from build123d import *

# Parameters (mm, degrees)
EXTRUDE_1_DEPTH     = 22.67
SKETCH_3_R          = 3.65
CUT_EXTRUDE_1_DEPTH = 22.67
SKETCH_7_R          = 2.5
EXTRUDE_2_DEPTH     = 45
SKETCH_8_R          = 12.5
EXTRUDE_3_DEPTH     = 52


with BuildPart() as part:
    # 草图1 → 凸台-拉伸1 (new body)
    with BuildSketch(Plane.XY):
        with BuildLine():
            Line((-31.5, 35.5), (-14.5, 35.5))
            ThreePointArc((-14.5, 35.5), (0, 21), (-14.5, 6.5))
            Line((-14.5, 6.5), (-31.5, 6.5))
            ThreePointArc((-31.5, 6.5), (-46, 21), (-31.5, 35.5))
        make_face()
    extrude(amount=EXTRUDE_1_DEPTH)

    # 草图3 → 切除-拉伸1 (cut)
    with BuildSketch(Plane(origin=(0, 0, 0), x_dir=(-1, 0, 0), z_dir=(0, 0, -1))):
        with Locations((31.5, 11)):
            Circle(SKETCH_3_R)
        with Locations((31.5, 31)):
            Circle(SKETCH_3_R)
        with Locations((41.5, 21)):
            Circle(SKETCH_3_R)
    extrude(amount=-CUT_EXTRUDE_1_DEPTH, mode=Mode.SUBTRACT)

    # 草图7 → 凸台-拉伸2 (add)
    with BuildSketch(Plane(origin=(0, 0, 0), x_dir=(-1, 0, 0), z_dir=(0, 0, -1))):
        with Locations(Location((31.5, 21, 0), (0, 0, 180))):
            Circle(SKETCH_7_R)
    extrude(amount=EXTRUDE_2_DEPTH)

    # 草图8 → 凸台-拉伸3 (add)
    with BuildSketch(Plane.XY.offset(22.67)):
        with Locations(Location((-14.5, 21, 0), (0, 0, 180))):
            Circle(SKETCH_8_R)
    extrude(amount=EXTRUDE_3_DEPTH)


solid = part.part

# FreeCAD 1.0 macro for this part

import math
import FreeCAD as App
import Part
import Sketcher

V = App.Vector

doc = App.newDocument("Part")
params = doc.addObject("Spreadsheet::Sheet", "Params")
for row, (alias, value) in enumerate([
    ("sketch1_radius", "14.5 mm"),
    ("sketch1_width", "17 mm"),
    ("pad1_length", "22.67 mm"),
    ("sketch2_diameter", "7.3 mm"),
    ("pocket1_length", "22.67 mm"),
    ("sketch3_diameter", "5 mm"),
    ("pad2_length", "45 mm"),
    ("sketch4_diameter", "25 mm"),
    ("pad3_length", "52 mm"),
], start=1):
    params.set(f"A{row}", alias)
    params.set(f"B{row}", "=" + value)
    params.setAlias(f"B{row}", alias)

body = doc.addObject("PartDesign::Body", "Body")

# Sketch on XY plane
sketch1 = body.newObject("Sketcher::SketchObject", "Sketch")
sketch1.AttachmentSupport = (doc.getObject("XY_Plane"), [""])
sketch1.MapMode = "FlatFace"
sketch1.addGeometry(Part.LineSegment(V(-14.5, 35.5, 0), V(-31.5, 35.5, 0)), False)
sketch1.addGeometry(Part.ArcOfCircle(Part.Circle(V(-31.5, 21, 0), V(0, 0, 1), 14.5), math.radians(90), math.radians(270)), False)
sketch1.addGeometry(Part.LineSegment(V(-31.5, 6.5, 0), V(-14.5, 6.5, 0)), False)
sketch1.addGeometry(Part.ArcOfCircle(Part.Circle(V(-14.5, 21, 0), V(0, 0, 1), 14.5), math.radians(-90), math.radians(90)), False)
sketch1.addConstraint(Sketcher.Constraint("Tangent", 0, 2, 1, 1))
sketch1.addConstraint(Sketcher.Constraint("Tangent", 1, 2, 2, 1))
sketch1.addConstraint(Sketcher.Constraint("Tangent", 2, 2, 3, 1))
sketch1.addConstraint(Sketcher.Constraint("Tangent", 3, 2, 0, 1))
sketch1.addConstraint(Sketcher.Constraint("Horizontal", 0))
sketch1.addConstraint(Sketcher.Constraint("Horizontal", 2))
sketch1.addConstraint(Sketcher.Constraint("Radius", 1, 14.5))
sketch1.addConstraint(Sketcher.Constraint("DistanceX", 0, 2, 0, 1, 17.0))
sketch1.addConstraint(Sketcher.Constraint("DistanceY", -1, 1, 1, 3, 21.0))
sketch1.addConstraint(Sketcher.Constraint("DistanceX", 1, 3, -1, 1, 31.5))
sketch1.setExpression("Constraints[6]", "Params.sketch1_radius")
sketch1.setExpression("Constraints[7]", "Params.sketch1_width")
pad1 = body.newObject("PartDesign::Pad", "Pad")
pad1.Profile = sketch1
pad1.setExpression("Length", "Params.pad1_length")

# Sketch on XY plane
sketch2 = body.newObject("Sketcher::SketchObject", "Sketch001")
sketch2.AttachmentSupport = (doc.getObject("XY_Plane"), [""])
sketch2.MapMode = "FlatFace"
sketch2.addGeometry(Part.Circle(V(-31.5, 11, 0), V(0, 0, 1), 3.65), False)
sketch2.addGeometry(Part.Circle(V(-31.5, 31, 0), V(0, 0, 1), 3.65), False)
sketch2.addGeometry(Part.Circle(V(-41.5, 21, 0), V(0, 0, 1), 3.65), False)
sketch2.addConstraint(Sketcher.Constraint("Equal", 0, 1))
sketch2.addConstraint(Sketcher.Constraint("Equal", 1, 2))
sketch2.addConstraint(Sketcher.Constraint("Vertical", 0, 3, 1, 3))
sketch2.addConstraint(Sketcher.Constraint("Diameter", 0, 7.3))
sketch2.addConstraint(Sketcher.Constraint("DistanceY", -1, 1, 0, 3, 11.0))
sketch2.addConstraint(Sketcher.Constraint("DistanceY", -1, 1, 1, 3, 31.0))
sketch2.addConstraint(Sketcher.Constraint("DistanceY", -1, 1, 2, 3, 21.0))
sketch2.addConstraint(Sketcher.Constraint("DistanceX", 2, 3, 0, 3, 10.0))
sketch2.addConstraint(Sketcher.Constraint("DistanceX", 0, 3, -1, 1, 31.5))
sketch2.setExpression("Constraints[3]", "Params.sketch2_diameter")
pocket1 = body.newObject("PartDesign::Pocket", "Pocket")
pocket1.Profile = sketch2
pocket1.setExpression("Length", "Params.pocket1_length")
pocket1.Reversed = True

# Sketch on XY plane
sketch3 = body.newObject("Sketcher::SketchObject", "Sketch002")
sketch3.AttachmentSupport = (doc.getObject("XY_Plane"), [""])
sketch3.MapMode = "FlatFace"
sketch3.addGeometry(Part.Circle(V(-31.5, 21, 0), V(0, 0, 1), 2.5), False)
sketch3.addConstraint(Sketcher.Constraint("Diameter", 0, 5.0))
sketch3.addConstraint(Sketcher.Constraint("DistanceY", -1, 1, 0, 3, 21.0))
sketch3.addConstraint(Sketcher.Constraint("DistanceX", 0, 3, -1, 1, 31.5))
sketch3.setExpression("Constraints[0]", "Params.sketch3_diameter")
pad2 = body.newObject("PartDesign::Pad", "Pad001")
pad2.Profile = sketch3
pad2.setExpression("Length", "Params.pad2_length")
pad2.Reversed = True

# Sketch on XY plane
sketch4 = body.newObject("Sketcher::SketchObject", "Sketch003")
sketch4.AttachmentSupport = (doc.getObject("XY_Plane"), [""])
sketch4.MapMode = "FlatFace"
sketch4.AttachmentOffset = App.Placement(V(0, 0, 22.67), App.Rotation())
sketch4.addGeometry(Part.Circle(V(-14.5, 21, 0), V(0, 0, 1), 12.5), False)
sketch4.addConstraint(Sketcher.Constraint("Diameter", 0, 25.0))
sketch4.addConstraint(Sketcher.Constraint("DistanceY", -1, 1, 0, 3, 21.0))
sketch4.addConstraint(Sketcher.Constraint("DistanceX", 0, 3, -1, 1, 14.5))
sketch4.setExpression("Constraints[0]", "Params.sketch4_diameter")
pad3 = body.newObject("PartDesign::Pad", "Pad002")
pad3.Profile = sketch4
pad3.setExpression("Length", "Params.pad3_length")

doc.recompute()
